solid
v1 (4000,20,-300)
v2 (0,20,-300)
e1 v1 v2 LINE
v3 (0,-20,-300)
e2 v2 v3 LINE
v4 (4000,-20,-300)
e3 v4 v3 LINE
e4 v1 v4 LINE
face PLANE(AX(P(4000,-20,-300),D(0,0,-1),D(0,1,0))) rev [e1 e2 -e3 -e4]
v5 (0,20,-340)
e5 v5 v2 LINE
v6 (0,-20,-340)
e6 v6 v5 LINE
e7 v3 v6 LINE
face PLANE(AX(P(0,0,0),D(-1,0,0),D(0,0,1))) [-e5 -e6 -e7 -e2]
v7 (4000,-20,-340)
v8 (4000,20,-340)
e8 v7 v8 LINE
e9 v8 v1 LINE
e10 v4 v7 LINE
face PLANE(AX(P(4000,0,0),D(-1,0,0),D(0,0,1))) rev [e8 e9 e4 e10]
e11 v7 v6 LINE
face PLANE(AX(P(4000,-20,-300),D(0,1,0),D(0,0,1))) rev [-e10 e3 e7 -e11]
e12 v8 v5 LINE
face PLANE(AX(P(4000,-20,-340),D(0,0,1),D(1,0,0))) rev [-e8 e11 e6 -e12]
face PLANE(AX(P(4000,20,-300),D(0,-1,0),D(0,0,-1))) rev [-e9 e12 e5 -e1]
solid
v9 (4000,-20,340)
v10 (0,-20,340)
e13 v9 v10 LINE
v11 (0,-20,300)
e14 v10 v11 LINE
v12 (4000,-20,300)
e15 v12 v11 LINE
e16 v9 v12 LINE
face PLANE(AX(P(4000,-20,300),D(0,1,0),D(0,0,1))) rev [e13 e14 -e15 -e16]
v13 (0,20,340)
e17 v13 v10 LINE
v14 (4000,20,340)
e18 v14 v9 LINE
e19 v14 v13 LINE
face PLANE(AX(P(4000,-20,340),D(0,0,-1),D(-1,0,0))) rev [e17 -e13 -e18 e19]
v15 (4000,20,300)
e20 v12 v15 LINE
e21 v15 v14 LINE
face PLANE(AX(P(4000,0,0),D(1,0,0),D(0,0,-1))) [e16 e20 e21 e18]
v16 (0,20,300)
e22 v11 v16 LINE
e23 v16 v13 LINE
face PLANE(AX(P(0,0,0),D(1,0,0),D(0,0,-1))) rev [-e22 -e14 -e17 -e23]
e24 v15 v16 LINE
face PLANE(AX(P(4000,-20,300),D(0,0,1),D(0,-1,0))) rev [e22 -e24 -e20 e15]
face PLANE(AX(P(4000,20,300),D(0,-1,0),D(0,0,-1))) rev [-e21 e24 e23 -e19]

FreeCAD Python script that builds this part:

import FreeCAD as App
import Part
import Sketcher
from FreeCAD import Vector


def add_polygon(sketch, points):
    """Adds a closed chain of lines whose ends are joined by coincident constraints."""
    first, n = sketch.GeometryCount, len(points)
    for a, b in zip(points, points[1:] + points[:1]):
        sketch.addGeometry(Part.LineSegment(App.Vector(*a, 0), App.Vector(*b, 0)), False)
    for i in range(n):
        sketch.addConstraint(Sketcher.Constraint("Coincident", first + i, 2, first + (i + 1) % n, 1))

doc = App.newDocument("Part")
body = doc.addObject("PartDesign::Body", "Body")

# Sketch on YZ plane
sketch1 = body.newObject("Sketcher::SketchObject", "Sketch")
sketch1.AttachmentSupport = (doc.getObject("YZ_Plane"), [""])
sketch1.MapMode = "FlatFace"
add_polygon(sketch1, [(20, -300), (-20, -300), (-20, -340), (20, -340)])  # lines 0-3
sketch1.addConstraint(Sketcher.Constraint("Horizontal", 0))
sketch1.addConstraint(Sketcher.Constraint("Vertical", 1))
sketch1.addConstraint(Sketcher.Constraint("Horizontal", 2))
sketch1.addConstraint(Sketcher.Constraint("Vertical", 3))
sketch1.addConstraint(Sketcher.Constraint("Equal", 2, 1))
sketch1.addConstraint(Sketcher.Constraint("DistanceX", 0, 2, 0, 1, 40.0))
sketch1.addConstraint(Sketcher.Constraint("DistanceX", 0, 2, -1, 1, 20.0))
sketch1.addConstraint(Sketcher.Constraint("DistanceY", 0, 2, -1, 1, 300.0))
pad1 = body.newObject("PartDesign::Pad", "Pad")
pad1.Profile = sketch1
pad1.Length = 4000
body2 = doc.addObject("PartDesign::Body", "Body001")

# Sketch on YZ plane
sketch2 = body2.newObject("Sketcher::SketchObject", "Sketch001")
sketch2.AttachmentSupport = (doc.getObject("YZ_Plane001"), [""])
sketch2.MapMode = "FlatFace"
add_polygon(sketch2, [(20, 340), (-20, 340), (-20, 300), (20, 300)])  # lines 0-3
sketch2.addConstraint(Sketcher.Constraint("Horizontal", 0))
sketch2.addConstraint(Sketcher.Constraint("Vertical", 1))
sketch2.addConstraint(Sketcher.Constraint("Horizontal", 2))
sketch2.addConstraint(Sketcher.Constraint("Vertical", 3))
sketch2.addConstraint(Sketcher.Constraint("Equal", 2, 1))
sketch2.addConstraint(Sketcher.Constraint("DistanceX", 0, 2, 0, 1, 40.0))
sketch2.addConstraint(Sketcher.Constraint("DistanceX", 0, 2, -1, 1, 20.0))
sketch2.addConstraint(Sketcher.Constraint("DistanceY", -1, 1, 0, 2, 340.0))
pad2 = body2.newObject("PartDesign::Pad", "Pad001")
pad2.Profile = sketch2
pad2.Length = 4000

doc.recompute()
